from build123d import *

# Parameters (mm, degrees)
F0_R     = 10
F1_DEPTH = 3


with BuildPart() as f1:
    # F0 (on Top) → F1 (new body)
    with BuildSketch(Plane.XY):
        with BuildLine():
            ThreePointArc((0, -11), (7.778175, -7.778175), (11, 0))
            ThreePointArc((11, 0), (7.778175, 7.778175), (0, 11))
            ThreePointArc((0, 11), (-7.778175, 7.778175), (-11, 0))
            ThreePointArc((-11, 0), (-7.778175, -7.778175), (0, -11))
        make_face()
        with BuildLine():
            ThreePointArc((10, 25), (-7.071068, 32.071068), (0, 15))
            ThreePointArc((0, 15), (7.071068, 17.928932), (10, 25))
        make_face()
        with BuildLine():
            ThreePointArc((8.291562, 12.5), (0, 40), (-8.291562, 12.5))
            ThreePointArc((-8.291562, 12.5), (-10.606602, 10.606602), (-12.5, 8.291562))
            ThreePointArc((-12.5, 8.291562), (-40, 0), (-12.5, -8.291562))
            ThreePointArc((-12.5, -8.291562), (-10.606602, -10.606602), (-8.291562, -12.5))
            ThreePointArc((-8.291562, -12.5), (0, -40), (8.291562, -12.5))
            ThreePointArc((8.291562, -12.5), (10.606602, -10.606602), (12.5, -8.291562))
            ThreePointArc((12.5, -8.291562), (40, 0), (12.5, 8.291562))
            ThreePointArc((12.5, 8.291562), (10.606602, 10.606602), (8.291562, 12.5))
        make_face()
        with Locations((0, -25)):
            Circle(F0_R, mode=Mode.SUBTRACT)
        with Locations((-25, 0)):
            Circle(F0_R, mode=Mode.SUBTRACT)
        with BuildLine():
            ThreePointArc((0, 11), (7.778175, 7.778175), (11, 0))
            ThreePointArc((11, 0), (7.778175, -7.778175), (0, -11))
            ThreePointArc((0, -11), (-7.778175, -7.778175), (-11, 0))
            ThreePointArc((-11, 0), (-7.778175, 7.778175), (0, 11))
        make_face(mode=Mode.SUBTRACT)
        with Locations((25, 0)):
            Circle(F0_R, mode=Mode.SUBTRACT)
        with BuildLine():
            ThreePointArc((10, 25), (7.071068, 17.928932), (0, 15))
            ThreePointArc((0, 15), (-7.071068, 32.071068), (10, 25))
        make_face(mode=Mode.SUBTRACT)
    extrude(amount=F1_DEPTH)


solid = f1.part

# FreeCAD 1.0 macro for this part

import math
import FreeCAD as App
import Part
import Sketcher

V = App.Vector

doc = App.newDocument("Part")
body = doc.addObject("PartDesign::Body", "Body")

# Sketch on XY plane
sketch1 = body.newObject("Sketcher::SketchObject", "Sketch")
sketch1.AttachmentSupport = (doc.getObject("XY_Plane"), [""])
sketch1.MapMode = "FlatFace"
sketch1.addGeometry([
    Part.ArcOfCircle(Part.Circle(V(0, 25, 0), V(0, 0, 1), 15), math.radians(-56.44269), math.radians(236.44269)),  # 0
    Part.ArcOfCircle(Part.Circle(V(-0.000014, 0.000014, 0), V(0, 0, 1), 14.999981), math.radians(123.557295), math.radians(146.442705)),  # 1
    Part.ArcOfCircle(Part.Circle(V(-25, 0, 0), V(0, 0, 1), 15), math.radians(33.55731), math.radians(326.44269)),  # 2
    Part.ArcOfCircle(Part.Circle(V(-0.000014, -0.000014, 0), V(0, 0, 1), 14.999981), math.radians(-146.442705), math.radians(-123.557295)),  # 3
    Part.ArcOfCircle(Part.Circle(V(0, -25, 0), V(0, 0, 1), 15), math.radians(123.55731), math.radians(416.44269)),  # 4
    Part.ArcOfCircle(Part.Circle(V(0.000014, -0.000014, 0), V(0, 0, 1), 14.999981), math.radians(-56.442705), math.radians(-33.557295)),  # 5
    Part.ArcOfCircle(Part.Circle(V(25, 0, 0), V(0, 0, 1), 15), math.radians(-146.44269), math.radians(146.44269)),  # 6
    Part.ArcOfCircle(Part.Circle(V(0.000014, 0.000014, 0), V(0, 0, 1), 14.999981), math.radians(33.557295), math.radians(56.442705)),  # 7
    Part.Circle(V(-25, 0, 0), V(0, 0, 1), 10),  # 8
    Part.Circle(V(0, -25, 0), V(0, 0, 1), 10),  # 9
    Part.ArcOfCircle(Part.Circle(V(-0.000001, 0.000001, 0), V(0, 0, 1), 10.999999), math.radians(89.999993), math.radians(180.000007)),  # 10
    Part.ArcOfCircle(Part.Circle(V(0.000001, 0.000001, 0), V(0, 0, 1), 10.999999), math.radians(-0.000007), math.radians(90.000007)),  # 11
    Part.ArcOfCircle(Part.Circle(V(0.000001, -0.000001, 0), V(0, 0, 1), 10.999999), math.radians(-90.000007), math.radians(0.000007)),  # 12
    Part.ArcOfCircle(Part.Circle(V(-0.000001, -0.000001, 0), V(0, 0, 1), 10.999999), math.radians(179.999993), math.radians(270.000007)),  # 13
    Part.Circle(V(25, 0, 0), V(0, 0, 1), 10),  # 14
    Part.ArcOfCircle(Part.Circle(V(0, 25, 0), V(0, 0, 1), 10), math.radians(-0.000001), math.radians(270.000001)),  # 15
    Part.ArcOfCircle(Part.Circle(V(0.000001, 24.999999, 0), V(0, 0, 1), 9.999999), math.radians(-90.000004), math.radians(0.000004)),  # 16
], False)
sketch1.addConstraint([
    Sketcher.Constraint("Coincident", 0, 2, 1, 1),
    Sketcher.Constraint("Coincident", 1, 2, 2, 1),
    Sketcher.Constraint("Coincident", 2, 2, 3, 1),
    Sketcher.Constraint("Coincident", 3, 2, 4, 1),
    Sketcher.Constraint("Coincident", 4, 2, 5, 1),
    Sketcher.Constraint("Coincident", 5, 2, 6, 1),
    Sketcher.Constraint("Coincident", 6, 2, 7, 1),
    Sketcher.Constraint("Coincident", 7, 2, 0, 1),
    Sketcher.Constraint("Tangent", 10, 1, 11, 2),
    Sketcher.Constraint("Tangent", 11, 1, 12, 2),
    Sketcher.Constraint("Tangent", 12, 1, 13, 2),
    Sketcher.Constraint("Tangent", 13, 1, 10, 2),
    Sketcher.Constraint("Tangent", 15, 1, 16, 2),
    Sketcher.Constraint("Coincident", 16, 1, 15, 2),
    Sketcher.Constraint("Coincident", 10, 3, -1, 1),
    Sketcher.Constraint("Coincident", 8, 3, 2, 3),
    Sketcher.Constraint("Coincident", 9, 3, 4, 3),
    Sketcher.Constraint("Coincident", 14, 3, 6, 3),
    Sketcher.Constraint("Coincident", 15, 3, 0, 3),
    Sketcher.Constraint("Equal", 0, 2),
    Sketcher.Constraint("Equal", 1, 3),
    Sketcher.Constraint("Equal", 2, 4),
    Sketcher.Constraint("Equal", 3, 5),
    Sketcher.Constraint("Equal", 4, 6),
    Sketcher.Constraint("Equal", 5, 7),
    Sketcher.Constraint("Equal", 8, 9),
    Sketcher.Constraint("Equal", 10, 11),
    Sketcher.Constraint("Equal", 9, 14),
    Sketcher.Constraint("Equal", 14, 15),
    Sketcher.Constraint("Symmetric", 0, 3, 4, 3, -1, 1),
    Sketcher.Constraint("Symmetric", 1, 3, 5, 3, -1, 1),
    Sketcher.Constraint("Symmetric", 2, 3, 6, 3, -1, 1),
    Sketcher.Constraint("Symmetric", 3, 3, 7, 3, -1, 1),
    Sketcher.Constraint("Symmetric", 3, 3, 5, 3, -2),
    Sketcher.Constraint("PointOnObject", 0, 3, -2),
    Sketcher.Constraint("PointOnObject", 2, 3, -1),
    Sketcher.Constraint("PointOnObject", 10, 1, -2),
    Sketcher.Constraint("PointOnObject", 11, 1, -1),
    Sketcher.Constraint("PointOnObject", 12, 1, -2),
    Sketcher.Constraint("PointOnObject", 13, 1, -1),
    Sketcher.Constraint("PointOnObject", 16, 1, -2),
    Sketcher.Constraint("Horizontal", 16, 3, 15, 1),
    Sketcher.Constraint("Diameter", 8, 20.0),
    Sketcher.Constraint("Radius", 0, 15.0),
    Sketcher.Constraint("Radius", 10, 10.999999),
    Sketcher.Constraint("DistanceY", -1, 1, 0, 3, 25.0),
    Sketcher.Constraint("DistanceX", 2, 3, -1, 1, 25.0),
    Sketcher.Constraint("DistanceY", -1, 1, 0, 2, 12.5),
    Sketcher.Constraint("DistanceX", 1, 2, -1, 1, 12.5),
    Sketcher.Constraint("Radius", 1, 14.999981),
])
pad1 = body.newObject("PartDesign::Pad", "Pad")
pad1.Profile = sketch1
pad1.Length = 3

doc.recompute()
